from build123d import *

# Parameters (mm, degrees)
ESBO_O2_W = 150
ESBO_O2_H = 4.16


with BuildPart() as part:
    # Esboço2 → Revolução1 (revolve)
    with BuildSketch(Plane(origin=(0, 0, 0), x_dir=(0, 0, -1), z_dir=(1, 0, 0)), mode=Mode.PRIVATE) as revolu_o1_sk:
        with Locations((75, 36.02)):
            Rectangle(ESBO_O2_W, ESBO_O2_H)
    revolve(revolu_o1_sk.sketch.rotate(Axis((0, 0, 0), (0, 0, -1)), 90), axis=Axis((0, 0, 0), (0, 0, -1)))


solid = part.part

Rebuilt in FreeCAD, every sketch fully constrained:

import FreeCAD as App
import Part
import Sketcher

V = App.Vector

doc = App.newDocument("Part")
params = doc.addObject("Spreadsheet::Sheet", "Params")
for row, (alias, value) in enumerate([
    ("sketch1_height", "150 mm"),
    ("sketch1_width", "4.16 mm"),
    ("revolution_angle", "360 deg"),
], start=1):
    params.set(f"A{row}", alias)
    params.set(f"B{row}", "=" + value)
    params.setAlias(f"B{row}", alias)

body = doc.addObject("PartDesign::Body", "Body")

# Sketch on YZ plane
sketch1 = body.newObject("Sketcher::SketchObject", "Sketch")
sketch1.AttachmentSupport = (doc.getObject("YZ_Plane"), [""])
sketch1.MapMode = "FlatFace"
sketch1.addGeometry(Part.LineSegment(V(38.1, 0, 0), V(33.9, 0, 0)), False)
sketch1.addGeometry(Part.LineSegment(V(33.9, 0, 0), V(33.9, -150, 0)), False)
sketch1.addGeometry(Part.LineSegment(V(33.9, -150, 0), V(38.1, -150, 0)), False)
sketch1.addGeometry(Part.LineSegment(V(38.1, -150, 0), V(38.1, 0, 0)), False)
sketch1.addConstraint(Sketcher.Constraint("Coincident", 0, 2, 1, 1))
sketch1.addConstraint(Sketcher.Constraint("Coincident", 1, 2, 2, 1))
sketch1.addConstraint(Sketcher.Constraint("Coincident", 2, 2, 3, 1))
sketch1.addConstraint(Sketcher.Constraint("Coincident", 3, 2, 0, 1))
sketch1.addConstraint(Sketcher.Constraint("Horizontal", 0))
sketch1.addConstraint(Sketcher.Constraint("Vertical", 1))
sketch1.addConstraint(Sketcher.Constraint("Horizontal", 2))
sketch1.addConstraint(Sketcher.Constraint("Vertical", 3))
sketch1.addConstraint(Sketcher.Constraint("PointOnObject", 0, 2, -1))
sketch1.addConstraint(Sketcher.Constraint("DistanceY", 1, 2, 1, 1, 150.0))
sketch1.addConstraint(Sketcher.Constraint("DistanceX", 0, 2, 0, 1, 4.16))
sketch1.addConstraint(Sketcher.Constraint("DistanceX", -1, 1, 2, 2, 38.1))
sketch1.setExpression("Constraints[9]", "Params.sketch1_height")
sketch1.setExpression("Constraints[10]", "Params.sketch1_width")
revolution = body.newObject("PartDesign::Revolution", "Revolution")
revolution.Profile = sketch1
revolution.ReferenceAxis = (sketch1, ["V_Axis"])
revolution.setExpression("Angle", "Params.revolution_angle")

doc.recompute()
